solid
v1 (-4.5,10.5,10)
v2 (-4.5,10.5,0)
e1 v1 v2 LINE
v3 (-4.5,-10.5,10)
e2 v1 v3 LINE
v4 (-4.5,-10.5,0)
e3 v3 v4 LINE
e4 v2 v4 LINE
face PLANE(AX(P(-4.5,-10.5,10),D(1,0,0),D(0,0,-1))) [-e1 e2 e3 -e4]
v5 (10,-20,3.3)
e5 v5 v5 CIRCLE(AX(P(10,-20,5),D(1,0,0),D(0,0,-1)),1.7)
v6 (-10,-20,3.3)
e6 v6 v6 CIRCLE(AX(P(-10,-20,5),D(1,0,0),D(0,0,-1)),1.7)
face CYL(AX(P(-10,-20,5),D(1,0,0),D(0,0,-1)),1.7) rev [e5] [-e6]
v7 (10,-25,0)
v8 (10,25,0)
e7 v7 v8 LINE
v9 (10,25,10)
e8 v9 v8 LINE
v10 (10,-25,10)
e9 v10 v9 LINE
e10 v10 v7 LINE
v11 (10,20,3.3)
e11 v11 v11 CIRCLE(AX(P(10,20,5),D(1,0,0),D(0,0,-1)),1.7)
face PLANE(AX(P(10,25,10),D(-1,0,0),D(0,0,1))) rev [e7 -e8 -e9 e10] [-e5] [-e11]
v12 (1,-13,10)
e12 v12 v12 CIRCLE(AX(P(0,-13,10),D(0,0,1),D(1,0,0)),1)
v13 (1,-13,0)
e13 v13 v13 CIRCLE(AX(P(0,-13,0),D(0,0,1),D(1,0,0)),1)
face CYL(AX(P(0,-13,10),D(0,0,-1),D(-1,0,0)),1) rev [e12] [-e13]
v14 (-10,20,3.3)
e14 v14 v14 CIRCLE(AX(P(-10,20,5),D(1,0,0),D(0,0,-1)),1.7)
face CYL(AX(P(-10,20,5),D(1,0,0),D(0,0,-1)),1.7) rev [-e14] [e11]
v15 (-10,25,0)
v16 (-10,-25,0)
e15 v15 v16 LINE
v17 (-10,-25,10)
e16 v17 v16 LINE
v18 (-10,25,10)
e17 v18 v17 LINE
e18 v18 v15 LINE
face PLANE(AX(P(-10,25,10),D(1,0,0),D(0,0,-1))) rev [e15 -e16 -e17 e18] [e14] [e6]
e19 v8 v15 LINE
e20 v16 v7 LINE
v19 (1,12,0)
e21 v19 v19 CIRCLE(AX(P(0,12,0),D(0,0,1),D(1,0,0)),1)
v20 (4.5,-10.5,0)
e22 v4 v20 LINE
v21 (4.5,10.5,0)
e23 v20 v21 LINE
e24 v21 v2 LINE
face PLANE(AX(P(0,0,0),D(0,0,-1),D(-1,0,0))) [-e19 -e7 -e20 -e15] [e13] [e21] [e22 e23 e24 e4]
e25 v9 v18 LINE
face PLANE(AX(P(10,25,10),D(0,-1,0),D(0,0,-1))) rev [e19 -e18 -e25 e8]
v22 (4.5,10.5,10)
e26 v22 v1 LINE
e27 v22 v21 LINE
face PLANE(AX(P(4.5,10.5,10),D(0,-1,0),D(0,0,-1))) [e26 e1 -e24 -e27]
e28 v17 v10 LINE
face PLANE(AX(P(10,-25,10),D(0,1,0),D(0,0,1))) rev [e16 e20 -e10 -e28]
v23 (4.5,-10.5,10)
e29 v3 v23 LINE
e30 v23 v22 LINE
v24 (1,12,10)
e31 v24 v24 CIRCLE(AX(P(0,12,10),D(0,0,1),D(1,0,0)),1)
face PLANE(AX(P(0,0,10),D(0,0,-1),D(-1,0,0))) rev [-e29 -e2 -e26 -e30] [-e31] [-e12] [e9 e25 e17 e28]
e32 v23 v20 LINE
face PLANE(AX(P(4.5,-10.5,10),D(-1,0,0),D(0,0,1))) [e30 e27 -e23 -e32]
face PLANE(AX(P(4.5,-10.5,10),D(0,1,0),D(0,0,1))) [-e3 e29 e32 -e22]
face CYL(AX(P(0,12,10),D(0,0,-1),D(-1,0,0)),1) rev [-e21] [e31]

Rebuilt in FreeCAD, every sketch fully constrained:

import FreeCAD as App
import Part
import Sketcher
Q = App.Units.Quantity

doc = App.newDocument("Part")
body = doc.addObject("PartDesign::Body", "Body")

sketch1 = body.newObject("Sketcher::SketchObject", "Sketch")
sketch1.AttachmentSupport = (doc.getObject("XY_Plane"), [""])
sketch1.MapMode = "FlatFace"
sketch1.addGeometry([
    Part.LineSegment(App.Vector(-10, 25, 0), App.Vector(-10, -25, 0)),
    Part.LineSegment(App.Vector(-10, -25, 0), App.Vector(10, -25, 0)),
    Part.LineSegment(App.Vector(10, -25, 0), App.Vector(10, 25, 0)),
    Part.LineSegment(App.Vector(10, 25, 0), App.Vector(-10, 25, 0)),
    Part.Circle(App.Vector(0, -13, 0), App.Vector(0, 0, 1), 1),
    Part.LineSegment(App.Vector(4.5, -10.5, 0), App.Vector(-4.5, -10.5, 0)),
    Part.LineSegment(App.Vector(-4.5, -10.5, 0), App.Vector(-4.5, 10.5, 0)),
    Part.LineSegment(App.Vector(-4.5, 10.5, 0), App.Vector(4.5, 10.5, 0)),
    Part.LineSegment(App.Vector(4.5, 10.5, 0), App.Vector(4.5, -10.5, 0)),
    Part.Circle(App.Vector(0, 12, 0), App.Vector(0, 0, 1), 1),
], False)
sketch1.addConstraint([
    Sketcher.Constraint("Coincident", 0, 2, 1, 1),
    Sketcher.Constraint("Coincident", 1, 2, 2, 1),
    Sketcher.Constraint("Coincident", 2, 2, 3, 1),
    Sketcher.Constraint("Coincident", 3, 2, 0, 1),
    Sketcher.Constraint("Coincident", 5, 2, 6, 1),
    Sketcher.Constraint("Coincident", 6, 2, 7, 1),
    Sketcher.Constraint("Coincident", 7, 2, 8, 1),
    Sketcher.Constraint("Coincident", 8, 2, 5, 1),
    Sketcher.Constraint("Vertical", 0),
    Sketcher.Constraint("Horizontal", 1),
    Sketcher.Constraint("Vertical", 2),
    Sketcher.Constraint("Horizontal", 3),
    Sketcher.Constraint("Horizontal", 5),
    Sketcher.Constraint("Vertical", 6),
    Sketcher.Constraint("Horizontal", 7),
    Sketcher.Constraint("Vertical", 8),
    Sketcher.Constraint("Equal", 4, 9),
    Sketcher.Constraint("Symmetric", 0, 2, 2, 2, -1, 1),
    Sketcher.Constraint("Symmetric", 5, 2, 7, 2, -1, 1),
    Sketcher.Constraint("PointOnObject", 4, 3, -2),
    Sketcher.Constraint("PointOnObject", 9, 3, -2),
    Sketcher.Constraint("Diameter", 4, Q("2 mm")),
    Sketcher.Constraint("DistanceX", 1, 1, 1, 2, Q("20 mm")),
    Sketcher.Constraint("DistanceX", 5, 2, 5, 1, Q("9 mm")),
    Sketcher.Constraint("DistanceY", 0, 2, 0, 1, Q("50 mm")),
    Sketcher.Constraint("DistanceY", 6, 1, 6, 2, Q("21 mm")),
    Sketcher.Constraint("DistanceY", 4, 3, -1, 1, Q("13 mm")),
    Sketcher.Constraint("DistanceY", -1, 1, 9, 3, Q("12 mm")),
])
pad1 = body.newObject("PartDesign::Pad", "Pad")
pad1.Profile = sketch1
pad1.Length = 10

sketch2 = body.newObject("Sketcher::SketchObject", "Sketch001")
sketch2.AttachmentSupport = (doc.getObject("YZ_Plane"), [""])
sketch2.MapMode = "FlatFace"
sketch2.AttachmentOffset = App.Placement(App.Vector(0, 0, 10), App.Rotation())
sketch2.addGeometry([
    Part.Circle(App.Vector(-20, 5, 0), App.Vector(0, 0, 1), 1.7),
    Part.Circle(App.Vector(20, 5, 0), App.Vector(0, 0, 1), 1.7),
], False)
sketch2.addConstraint([
    Sketcher.Constraint("Equal", 0, 1),
    Sketcher.Constraint("Symmetric", 0, 3, 1, 3, -2),
    Sketcher.Constraint("Diameter", 0, Q("3.4 mm")),
    Sketcher.Constraint("DistanceX", 0, 3, -1, 1, Q("20 mm")),
    Sketcher.Constraint("DistanceY", -1, 1, 0, 3, Q("5 mm")),
])
pocket1 = body.newObject("PartDesign::Pocket", "Pocket")
pocket1.Profile = sketch2
pocket1.Type = "ThroughAll"

doc.recompute()
